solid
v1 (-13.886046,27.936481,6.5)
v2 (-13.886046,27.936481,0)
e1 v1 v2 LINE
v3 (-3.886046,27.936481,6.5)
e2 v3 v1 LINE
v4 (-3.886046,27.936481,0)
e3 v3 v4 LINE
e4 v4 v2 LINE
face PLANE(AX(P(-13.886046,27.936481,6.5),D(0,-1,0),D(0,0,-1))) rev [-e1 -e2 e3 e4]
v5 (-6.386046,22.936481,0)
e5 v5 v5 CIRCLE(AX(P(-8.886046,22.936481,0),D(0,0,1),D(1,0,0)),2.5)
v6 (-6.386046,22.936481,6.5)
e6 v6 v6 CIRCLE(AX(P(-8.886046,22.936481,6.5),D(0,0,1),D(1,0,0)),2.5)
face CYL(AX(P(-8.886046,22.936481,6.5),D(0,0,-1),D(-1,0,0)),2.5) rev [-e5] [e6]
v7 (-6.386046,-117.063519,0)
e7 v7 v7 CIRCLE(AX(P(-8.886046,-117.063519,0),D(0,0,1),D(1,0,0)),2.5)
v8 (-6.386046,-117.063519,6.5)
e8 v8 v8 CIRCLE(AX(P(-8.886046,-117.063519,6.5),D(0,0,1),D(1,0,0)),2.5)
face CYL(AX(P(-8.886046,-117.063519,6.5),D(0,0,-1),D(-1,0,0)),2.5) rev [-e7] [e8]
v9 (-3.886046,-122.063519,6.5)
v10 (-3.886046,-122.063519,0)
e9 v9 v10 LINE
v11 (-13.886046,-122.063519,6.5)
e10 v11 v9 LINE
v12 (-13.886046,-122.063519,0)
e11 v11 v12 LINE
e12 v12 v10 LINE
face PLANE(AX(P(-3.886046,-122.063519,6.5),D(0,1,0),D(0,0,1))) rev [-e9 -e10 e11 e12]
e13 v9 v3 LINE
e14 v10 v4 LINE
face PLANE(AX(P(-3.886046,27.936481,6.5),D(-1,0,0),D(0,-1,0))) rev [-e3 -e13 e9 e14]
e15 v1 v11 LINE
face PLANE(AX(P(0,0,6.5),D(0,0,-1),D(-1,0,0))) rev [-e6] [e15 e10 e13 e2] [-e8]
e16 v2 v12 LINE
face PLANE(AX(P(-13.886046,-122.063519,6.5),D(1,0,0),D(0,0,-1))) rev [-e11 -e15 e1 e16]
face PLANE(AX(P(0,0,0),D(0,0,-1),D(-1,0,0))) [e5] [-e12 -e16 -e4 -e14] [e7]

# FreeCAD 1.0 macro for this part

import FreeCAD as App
import Part
import Sketcher

V = App.Vector


def add_polygon(sketch, points):
    """Adds a closed chain of lines whose ends are joined by coincident constraints."""
    first, n = sketch.GeometryCount, len(points)
    for a, b in zip(points, points[1:] + points[:1]):
        sketch.addGeometry(Part.LineSegment(App.Vector(*a, 0), App.Vector(*b, 0)), False)
    for i in range(n):
        sketch.addConstraint(Sketcher.Constraint("Coincident", first + i, 2, first + (i + 1) % n, 1))

doc = App.newDocument("Part")
params = doc.addObject("Spreadsheet::Sheet", "Params")
for row, (alias, value) in enumerate([
    ("sketch1_diameter", "5 mm"),
    ("sketch1_width", "10 mm"),
    ("sketch1_height", "150 mm"),
    ("pad1_length", "6.5 mm"),
], start=1):
    params.set(f"A{row}", alias)
    params.set(f"B{row}", "=" + value)
    params.setAlias(f"B{row}", alias)

body = doc.addObject("PartDesign::Body", "Body")

# Sketch on XY plane
sketch1 = doc.addObject("Sketcher::SketchObject", "Sketch")
body.addObject(sketch1)
sketch1.AttachmentSupport = (doc.XY_Plane, [""])
sketch1.MapMode = "FlatFace"
add_polygon(sketch1, [(-13.9, 27.9), (-13.9, -122.1), (-3.9, -122.1), (-3.9, 27.9)])  # lines 0-3
sketch1.addGeometry(Part.Circle(V(-8.9, -117.1, 0), V(0, 0, 1), 2.5), False)  # 4
sketch1.addGeometry(Part.Circle(V(-8.9, 22.9, 0), V(0, 0, 1), 2.5), False)  # 5
sketch1.addConstraint([
    Sketcher.Constraint("Vertical", 0),
    Sketcher.Constraint("Horizontal", 1),
    Sketcher.Constraint("Vertical", 2),
    Sketcher.Constraint("Horizontal", 3),
    Sketcher.Constraint("Equal", 4, 5),
    Sketcher.Constraint("Vertical", 4, 3, 5, 3),
    Sketcher.Constraint("Diameter", 4, 5.0),
    Sketcher.Constraint("DistanceX", 1, 1, 1, 2, 10.0),
    Sketcher.Constraint("DistanceY", 0, 2, 0, 1, 150.0),
    Sketcher.Constraint("DistanceY", 4, 3, 5, 3, 140.0),
    Sketcher.Constraint("DistanceX", 0, 2, 4, 3, 5.0),
    Sketcher.Constraint("DistanceY", 0, 2, 4, 3, 5.0),
    Sketcher.Constraint("DistanceY", 4, 3, -1, 1, 117.063519),
    Sketcher.Constraint("DistanceX", 4, 3, -1, 1, 8.886046),
])
sketch1.setExpression("Constraints[10]", "Params.sketch1_diameter")
sketch1.setExpression("Constraints[11]", "Params.sketch1_width")
sketch1.setExpression("Constraints[12]", "Params.sketch1_height")
pad1 = doc.addObject("PartDesign::Pad", "Pad")
body.addObject(pad1)
pad1.Profile = sketch1
pad1.setExpression("Length", "Params.pad1_length")

doc.recompute()
